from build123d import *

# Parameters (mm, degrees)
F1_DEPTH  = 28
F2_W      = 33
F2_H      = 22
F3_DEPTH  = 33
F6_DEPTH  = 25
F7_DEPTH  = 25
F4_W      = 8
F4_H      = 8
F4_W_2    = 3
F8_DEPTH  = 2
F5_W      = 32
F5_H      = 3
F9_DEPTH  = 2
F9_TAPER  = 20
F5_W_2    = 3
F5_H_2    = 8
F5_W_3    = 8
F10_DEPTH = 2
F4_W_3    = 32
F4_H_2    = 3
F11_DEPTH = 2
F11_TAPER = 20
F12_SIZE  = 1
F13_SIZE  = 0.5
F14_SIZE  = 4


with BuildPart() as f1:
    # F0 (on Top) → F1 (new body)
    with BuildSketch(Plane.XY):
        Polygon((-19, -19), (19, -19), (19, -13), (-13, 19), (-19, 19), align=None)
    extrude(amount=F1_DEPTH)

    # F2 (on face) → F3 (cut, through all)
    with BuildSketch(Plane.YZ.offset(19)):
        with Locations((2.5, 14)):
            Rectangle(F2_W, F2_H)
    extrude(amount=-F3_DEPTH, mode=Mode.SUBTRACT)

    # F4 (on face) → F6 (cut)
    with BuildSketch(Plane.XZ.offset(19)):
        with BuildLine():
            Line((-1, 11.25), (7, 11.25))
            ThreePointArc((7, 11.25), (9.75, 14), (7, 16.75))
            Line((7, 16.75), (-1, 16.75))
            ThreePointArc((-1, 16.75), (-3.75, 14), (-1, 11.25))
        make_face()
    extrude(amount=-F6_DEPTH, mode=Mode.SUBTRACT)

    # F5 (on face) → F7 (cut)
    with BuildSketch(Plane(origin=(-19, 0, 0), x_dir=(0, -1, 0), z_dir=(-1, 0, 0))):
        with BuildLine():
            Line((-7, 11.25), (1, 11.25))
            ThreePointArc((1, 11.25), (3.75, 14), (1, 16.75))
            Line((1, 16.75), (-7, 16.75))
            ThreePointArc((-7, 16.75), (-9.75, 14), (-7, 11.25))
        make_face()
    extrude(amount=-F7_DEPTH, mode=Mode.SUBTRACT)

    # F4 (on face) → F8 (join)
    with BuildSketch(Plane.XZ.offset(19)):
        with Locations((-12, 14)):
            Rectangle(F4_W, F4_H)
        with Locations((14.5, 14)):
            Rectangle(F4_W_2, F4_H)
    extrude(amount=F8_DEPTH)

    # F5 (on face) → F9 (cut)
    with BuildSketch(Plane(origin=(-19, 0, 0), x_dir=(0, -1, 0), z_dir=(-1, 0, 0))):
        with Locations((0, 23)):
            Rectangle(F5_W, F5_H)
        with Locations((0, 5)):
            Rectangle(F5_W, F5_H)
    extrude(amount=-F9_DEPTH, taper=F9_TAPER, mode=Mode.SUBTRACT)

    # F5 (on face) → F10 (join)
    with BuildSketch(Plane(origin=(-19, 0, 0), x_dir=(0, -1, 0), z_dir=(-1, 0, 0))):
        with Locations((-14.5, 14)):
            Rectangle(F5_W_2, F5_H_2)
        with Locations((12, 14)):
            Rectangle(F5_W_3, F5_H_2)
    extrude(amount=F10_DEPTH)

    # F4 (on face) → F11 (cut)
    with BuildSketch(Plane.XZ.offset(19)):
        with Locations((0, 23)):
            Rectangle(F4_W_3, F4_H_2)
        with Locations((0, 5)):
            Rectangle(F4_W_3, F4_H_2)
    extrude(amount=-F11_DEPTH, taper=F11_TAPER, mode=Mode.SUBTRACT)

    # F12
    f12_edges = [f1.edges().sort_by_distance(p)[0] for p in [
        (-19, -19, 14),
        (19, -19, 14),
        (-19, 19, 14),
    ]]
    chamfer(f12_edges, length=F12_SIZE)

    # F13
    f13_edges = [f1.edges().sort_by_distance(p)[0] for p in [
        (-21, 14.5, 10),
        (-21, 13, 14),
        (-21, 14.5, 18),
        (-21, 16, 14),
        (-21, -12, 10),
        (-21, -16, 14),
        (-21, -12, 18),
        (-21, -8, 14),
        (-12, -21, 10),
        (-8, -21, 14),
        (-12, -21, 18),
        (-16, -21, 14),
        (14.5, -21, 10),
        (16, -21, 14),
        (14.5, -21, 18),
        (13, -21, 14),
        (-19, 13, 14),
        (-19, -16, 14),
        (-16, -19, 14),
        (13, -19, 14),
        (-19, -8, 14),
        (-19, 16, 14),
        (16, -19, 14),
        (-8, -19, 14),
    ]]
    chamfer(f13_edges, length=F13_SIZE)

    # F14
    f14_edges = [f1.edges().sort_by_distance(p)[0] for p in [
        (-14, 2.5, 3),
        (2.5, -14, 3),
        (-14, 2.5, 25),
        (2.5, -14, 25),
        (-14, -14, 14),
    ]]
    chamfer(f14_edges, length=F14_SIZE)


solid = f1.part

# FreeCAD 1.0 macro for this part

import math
import FreeCAD as App
import Part
import Sketcher

V = App.Vector


def edges_at(feature, points):
    """Names of the edges that pass closest to the given points."""
    edges = feature.Shape.Edges
    near = lambda p: min(range(len(edges)), key=lambda i: edges[i].distToShape(Part.Vertex(*p))[0])
    return sorted({f"Edge{near(p) + 1}" for p in points})


def add_polygon(sketch, points):
    """Adds a closed chain of lines whose ends are joined by coincident constraints."""
    first, n = sketch.GeometryCount, len(points)
    for a, b in zip(points, points[1:] + points[:1]):
        sketch.addGeometry(Part.LineSegment(App.Vector(*a, 0), App.Vector(*b, 0)), False)
    for i in range(n):
        sketch.addConstraint(Sketcher.Constraint("Coincident", first + i, 2, first + (i + 1) % n, 1))

doc = App.newDocument("Part")
body = doc.addObject("PartDesign::Body", "Body")

# Sketch on XY plane
sketch1 = body.newObject("Sketcher::SketchObject", "Sketch")
sketch1.AttachmentSupport = (doc.getObject("XY_Plane"), [""])
sketch1.MapMode = "FlatFace"
add_polygon(sketch1, [(-19, -19), (19, -19), (19, -13), (-13, 19), (-19, 19)])  # lines 0-4
sketch1.addConstraint([
    Sketcher.Constraint("Horizontal", 0),
    Sketcher.Constraint("Vertical", 1),
    Sketcher.Constraint("Horizontal", 3),
    Sketcher.Constraint("Vertical", 4),
    Sketcher.Constraint("Symmetric", 0, 2, 3, 2, -1, 1),
    Sketcher.Constraint("Equal", 3, 1),
    Sketcher.Constraint("Equal", 0, 4),
    Sketcher.Constraint("DistanceX", 0, 1, 0, 2, 38.0),
    Sketcher.Constraint("DistanceX", 3, 2, 3, 1, 6.0),
])
pad1 = body.newObject("PartDesign::Pad", "Pad")
pad1.Profile = sketch1
pad1.Length = 28

# Sketch on YZ plane
sketch2 = body.newObject("Sketcher::SketchObject", "Sketch001")
sketch2.AttachmentSupport = (doc.getObject("YZ_Plane"), [""])
sketch2.MapMode = "FlatFace"
sketch2.AttachmentOffset = App.Placement(V(0, 0, 19), App.Rotation())
add_polygon(sketch2, [(-14, 25), (-14, 3), (19, 3), (19, 25)])  # lines 0-3
sketch2.addConstraint([
    Sketcher.Constraint("Vertical", 0),
    Sketcher.Constraint("Horizontal", 1),
    Sketcher.Constraint("Vertical", 2),
    Sketcher.Constraint("Horizontal", 3),
    Sketcher.Constraint("DistanceX", 1, 1, 1, 2, 33.0),
    Sketcher.Constraint("DistanceY", 0, 2, 0, 1, 22.0),
    Sketcher.Constraint("DistanceX", 0, 2, -1, 1, 14.0),
    Sketcher.Constraint("DistanceY", -1, 1, 0, 2, 3.0),
])
pocket1 = body.newObject("PartDesign::Pocket", "Pocket")
pocket1.Profile = sketch2
pocket1.Length = 33

# Sketch on XZ plane
sketch3 = body.newObject("Sketcher::SketchObject", "Sketch002")
sketch3.AttachmentSupport = (doc.getObject("XZ_Plane"), [""])
sketch3.MapMode = "FlatFace"
sketch3.AttachmentOffset = App.Placement(V(0, 0, 19), App.Rotation())
sketch3.addGeometry([
    Part.LineSegment(V(-1, 11.2, 0), V(7, 11.2, 0)),
    Part.ArcOfCircle(Part.Circle(V(7, 14, 0), V(0, 0, 1), 2.8), math.radians(-90), math.radians(90)),
    Part.LineSegment(V(7, 16.8, 0), V(-1, 16.8, 0)),
    Part.ArcOfCircle(Part.Circle(V(-1, 14, 0), V(0, 0, 1), 2.8), math.radians(90), math.radians(270)),
], False)
sketch3.addConstraint([
    Sketcher.Constraint("Tangent", 0, 2, 1, 1),
    Sketcher.Constraint("Tangent", 1, 2, 2, 1),
    Sketcher.Constraint("Tangent", 2, 2, 3, 1),
    Sketcher.Constraint("Tangent", 3, 2, 0, 1),
    Sketcher.Constraint("Horizontal", 0),
    Sketcher.Constraint("Horizontal", 2),
    Sketcher.Constraint("DistanceX", 0, 1, 0, 2, 8.0),
    Sketcher.Constraint("Radius", 1, 2.75),
    Sketcher.Constraint("DistanceX", -1, 1, 1, 3, 7.0),
    Sketcher.Constraint("DistanceY", -1, 1, 1, 3, 14.0),
])
pocket2 = body.newObject("PartDesign::Pocket", "Pocket001")
pocket2.Profile = sketch3
pocket2.Length = 25

# Sketch on YZ plane
sketch4 = body.newObject("Sketcher::SketchObject", "Sketch003")
sketch4.AttachmentSupport = (doc.getObject("YZ_Plane"), [""])
sketch4.MapMode = "FlatFace"
sketch4.AttachmentOffset = App.Placement(V(0, 0, -19), App.Rotation())
sketch4.addGeometry([
    Part.LineSegment(V(7, 11.2, 0), V(-1, 11.2, 0)),
    Part.ArcOfCircle(Part.Circle(V(-1, 14, 0), V(0, 0, 1), 2.8), math.radians(90), math.radians(270)),
    Part.LineSegment(V(-1, 16.8, 0), V(7, 16.8, 0)),
    Part.ArcOfCircle(Part.Circle(V(7, 14, 0), V(0, 0, 1), 2.8), math.radians(-90), math.radians(90)),
], False)
sketch4.addConstraint([
    Sketcher.Constraint("Tangent", 0, 2, 1, 2),
    Sketcher.Constraint("Tangent", 1, 1, 2, 1),
    Sketcher.Constraint("Tangent", 2, 2, 3, 2),
    Sketcher.Constraint("Tangent", 3, 1, 0, 1),
    Sketcher.Constraint("Horizontal", 0),
    Sketcher.Constraint("Horizontal", 2),
    Sketcher.Constraint("DistanceX", 0, 2, 0, 1, 8.0),
    Sketcher.Constraint("Radius", 1, 2.75),
    Sketcher.Constraint("DistanceX", 1, 3, -1, 1, 1.0),
    Sketcher.Constraint("DistanceY", -1, 1, 1, 3, 14.0),
])
pocket3 = body.newObject("PartDesign::Pocket", "Pocket002")
pocket3.Profile = sketch4
pocket3.Length = 25
pocket3.Reversed = True

# Sketch on XZ plane
sketch5 = body.newObject("Sketcher::SketchObject", "Sketch004")
sketch5.AttachmentSupport = (doc.getObject("XZ_Plane"), [""])
sketch5.MapMode = "FlatFace"
sketch5.AttachmentOffset = App.Placement(V(0, 0, 19), App.Rotation())
add_polygon(sketch5, [(-16, 18), (-16, 10), (-8, 10), (-8, 18)])  # lines 0-3
add_polygon(sketch5, [(13, 18), (13, 10), (16, 10), (16, 18)])  # lines 4-7
sketch5.addConstraint([
    Sketcher.Constraint("Vertical", 0),
    Sketcher.Constraint("Horizontal", 1),
    Sketcher.Constraint("Vertical", 2),
    Sketcher.Constraint("Horizontal", 3),
    Sketcher.Constraint("Vertical", 4),
    Sketcher.Constraint("Horizontal", 5),
    Sketcher.Constraint("Vertical", 6),
    Sketcher.Constraint("Horizontal", 7),
    Sketcher.Constraint("Symmetric", 0, 2, 5, 2, -2),
    Sketcher.Constraint("Horizontal", 3, 2, 6, 2),
    Sketcher.Constraint("Equal", 3, 0),
    Sketcher.Constraint("DistanceX", 1, 1, 1, 2, 8.0),
    Sketcher.Constraint("DistanceX", 5, 1, 5, 2, 3.0),
    Sketcher.Constraint("DistanceX", 0, 2, -1, 1, 16.0),
    Sketcher.Constraint("DistanceY", -1, 1, 0, 2, 10.0),
])
pad2 = body.newObject("PartDesign::Pad", "Pad001")
pad2.Profile = sketch5
pad2.Length = 2

# Sketch on YZ plane
sketch6 = body.newObject("Sketcher::SketchObject", "Sketch005")
sketch6.AttachmentSupport = (doc.getObject("YZ_Plane"), [""])
sketch6.MapMode = "FlatFace"
sketch6.AttachmentOffset = App.Placement(V(0, 0, -19), App.Rotation())
add_polygon(sketch6, [(16, 24.5), (16, 21.5), (-16, 21.5), (-16, 24.5)])  # lines 0-3
add_polygon(sketch6, [(16, 6.5), (16, 3.5), (-16, 3.5), (-16, 6.5)])  # lines 4-7
sketch6.addConstraint([
    Sketcher.Constraint("Vertical", 0),
    Sketcher.Constraint("Horizontal", 1),
    Sketcher.Constraint("Vertical", 2),
    Sketcher.Constraint("Horizontal", 3),
    Sketcher.Constraint("Vertical", 4),
    Sketcher.Constraint("Horizontal", 5),
    Sketcher.Constraint("Vertical", 6),
    Sketcher.Constraint("Horizontal", 7),
    Sketcher.Constraint("Vertical", 3, 2, 4, 2),
    Sketcher.Constraint("Vertical", 2, 2, 5, 2),
    Sketcher.Constraint("Equal", 2, 4),
    Sketcher.Constraint("DistanceX", 1, 2, 1, 1, 32.0),
    Sketcher.Constraint("DistanceY", 0, 2, 0, 1, 3.0),
    Sketcher.Constraint("DistanceX", -1, 1, 0, 2, 16.0),
    Sketcher.Constraint("DistanceY", 4, 2, 0, 2, 18.0),
    Sketcher.Constraint("DistanceY", -1, 1, 0, 2, 21.5),
])
pocket4 = body.newObject("PartDesign::Pocket", "Pocket003")
pocket4.Profile = sketch6
pocket4.Length = 2
pocket4.Reversed = True
pocket4.TaperAngle = -20

# Sketch on YZ plane
sketch7 = body.newObject("Sketcher::SketchObject", "Sketch006")
sketch7.AttachmentSupport = (doc.getObject("YZ_Plane"), [""])
sketch7.MapMode = "FlatFace"
sketch7.AttachmentOffset = App.Placement(V(0, 0, -19), App.Rotation())
add_polygon(sketch7, [(16, 18), (16, 10), (13, 10), (13, 18)])  # lines 0-3
add_polygon(sketch7, [(-8, 18), (-8, 10), (-16, 10), (-16, 18)])  # lines 4-7
sketch7.addConstraint([
    Sketcher.Constraint("Vertical", 0),
    Sketcher.Constraint("Horizontal", 1),
    Sketcher.Constraint("Vertical", 2),
    Sketcher.Constraint("Horizontal", 3),
    Sketcher.Constraint("Vertical", 4),
    Sketcher.Constraint("Horizontal", 5),
    Sketcher.Constraint("Vertical", 6),
    Sketcher.Constraint("Horizontal", 7),
    Sketcher.Constraint("Symmetric", 0, 2, 5, 2, -2),
    Sketcher.Constraint("Horizontal", 3, 2, 6, 2),
    Sketcher.Constraint("Equal", 7, 0),
    Sketcher.Constraint("DistanceX", 1, 2, 1, 1, 3.0),
    Sketcher.Constraint("DistanceX", 5, 2, 5, 1, 8.0),
    Sketcher.Constraint("DistanceX", -1, 1, 0, 2, 16.0),
    Sketcher.Constraint("DistanceY", -1, 1, 0, 2, 10.0),
])
pad3 = body.newObject("PartDesign::Pad", "Pad002")
pad3.Profile = sketch7
pad3.Length = 2
pad3.Reversed = True

# Sketch on XZ plane
sketch8 = body.newObject("Sketcher::SketchObject", "Sketch007")
sketch8.AttachmentSupport = (doc.getObject("XZ_Plane"), [""])
sketch8.MapMode = "FlatFace"
sketch8.AttachmentOffset = App.Placement(V(0, 0, 19), App.Rotation())
add_polygon(sketch8, [(-16, 24.5), (-16, 21.5), (16, 21.5), (16, 24.5)])  # lines 0-3
add_polygon(sketch8, [(-16, 6.5), (-16, 3.5), (16, 3.5), (16, 6.5)])  # lines 4-7
sketch8.addConstraint([
    Sketcher.Constraint("Vertical", 0),
    Sketcher.Constraint("Horizontal", 1),
    Sketcher.Constraint("Vertical", 2),
    Sketcher.Constraint("Horizontal", 3),
    Sketcher.Constraint("Vertical", 4),
    Sketcher.Constraint("Horizontal", 5),
    Sketcher.Constraint("Vertical", 6),
    Sketcher.Constraint("Horizontal", 7),
    Sketcher.Constraint("Vertical", 3, 2, 4, 2),
    Sketcher.Constraint("Vertical", 2, 2, 5, 2),
    Sketcher.Constraint("Equal", 2, 4),
    Sketcher.Constraint("DistanceX", 1, 1, 1, 2, 32.0),
    Sketcher.Constraint("DistanceY", 0, 2, 0, 1, 3.0),
    Sketcher.Constraint("DistanceX", 0, 2, -1, 1, 16.0),
    Sketcher.Constraint("DistanceY", 4, 2, 0, 2, 18.0),
    Sketcher.Constraint("DistanceY", -1, 1, 0, 2, 21.5),
])
pocket5 = body.newObject("PartDesign::Pocket", "Pocket004")
pocket5.Profile = sketch8
pocket5.Length = 2
pocket5.TaperAngle = -20
doc.recompute()

chamfer = body.newObject("PartDesign::Chamfer", "Chamfer")
chamfer.Base = (pocket5, edges_at(pocket5, [(-19, -19, 14), (19, -19, 14), (-19, 19, 14)]))
chamfer.Size = 1
doc.recompute()

chamfer2 = body.newObject("PartDesign::Chamfer", "Chamfer001")
chamfer2.Base = (chamfer, edges_at(chamfer, [
    (-21, 14.5, 10),
    (-21, 13, 14),
    (-21, 14.5, 18),
    (-21, 16, 14),
    (-21, -12, 10),
    (-21, -16, 14),
    (-21, -12, 18),
    (-21, -8, 14),
    (-12, -21, 10),
    (-8, -21, 14),
    (-12, -21, 18),
    (-16, -21, 14),
    (14.5, -21, 10),
    (16, -21, 14),
    (14.5, -21, 18),
    (13, -21, 14),
    (-19, 13, 14),
    (-19, -16, 14),
    (-16, -19, 14),
    (13, -19, 14),
    (-19, -8, 14),
    (-19, 16, 14),
    (16, -19, 14),
    (-8, -19, 14),
]))
chamfer2.Size = 0.5
doc.recompute()

chamfer3 = body.newObject("PartDesign::Chamfer", "Chamfer002")
chamfer3.Base = (chamfer2, edges_at(chamfer2, [
    (-14, 2.5, 3),
    (2.5, -14, 3),
    (-14, 2.5, 25),
    (2.5, -14, 25),
    (-14, -14, 14),
]))
chamfer3.Size = 4

doc.recompute()
